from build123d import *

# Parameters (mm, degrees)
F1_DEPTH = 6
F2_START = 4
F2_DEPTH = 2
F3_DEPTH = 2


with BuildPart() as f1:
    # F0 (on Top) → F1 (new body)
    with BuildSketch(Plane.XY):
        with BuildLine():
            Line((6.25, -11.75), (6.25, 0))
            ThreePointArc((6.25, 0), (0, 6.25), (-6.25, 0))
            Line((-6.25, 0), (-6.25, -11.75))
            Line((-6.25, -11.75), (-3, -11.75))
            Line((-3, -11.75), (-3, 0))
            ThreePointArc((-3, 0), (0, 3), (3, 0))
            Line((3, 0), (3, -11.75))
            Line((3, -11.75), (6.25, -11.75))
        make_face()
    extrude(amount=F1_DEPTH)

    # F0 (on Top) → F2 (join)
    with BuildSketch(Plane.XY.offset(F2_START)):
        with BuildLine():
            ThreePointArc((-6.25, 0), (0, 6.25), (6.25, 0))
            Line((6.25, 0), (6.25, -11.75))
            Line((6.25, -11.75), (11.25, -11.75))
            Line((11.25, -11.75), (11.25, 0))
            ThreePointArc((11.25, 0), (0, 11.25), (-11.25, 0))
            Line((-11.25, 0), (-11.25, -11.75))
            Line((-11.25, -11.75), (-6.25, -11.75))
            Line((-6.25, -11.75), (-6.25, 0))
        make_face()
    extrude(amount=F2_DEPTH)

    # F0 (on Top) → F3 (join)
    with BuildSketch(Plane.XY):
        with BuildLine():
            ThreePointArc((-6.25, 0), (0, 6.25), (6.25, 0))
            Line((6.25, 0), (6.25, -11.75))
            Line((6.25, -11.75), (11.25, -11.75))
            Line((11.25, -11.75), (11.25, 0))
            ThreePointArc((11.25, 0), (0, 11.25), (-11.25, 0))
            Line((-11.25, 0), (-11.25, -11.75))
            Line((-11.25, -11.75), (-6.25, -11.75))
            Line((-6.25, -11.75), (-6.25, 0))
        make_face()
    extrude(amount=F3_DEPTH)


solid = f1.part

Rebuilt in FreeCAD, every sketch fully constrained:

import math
import FreeCAD as App
import Part
import Sketcher

V = App.Vector
Q = App.Units.Quantity

doc = App.newDocument("Part")
params = doc.addObject("Spreadsheet::Sheet", "Params")
for row, (alias, value) in enumerate([
    ("sketch1_radius", "3 mm"),
    ("sketch1_radius2", "6.25 mm"),
    ("sketch1_height", "11.75 mm"),
    ("pad1_length", "6 mm"),
    ("sketch2_width", "5 mm"),
    ("sketch2_radius", "6.25 mm"),
    ("sketch2_height", "11.75 mm"),
    ("pad2_length", "2 mm"),
    ("sketch3_width", "5 mm"),
    ("sketch3_radius", "6.25 mm"),
    ("sketch3_height", "11.75 mm"),
    ("pad3_length", "2 mm"),
], start=1):
    params.set(f"A{row}", alias)
    params.set(f"B{row}", "=" + value)
    params.setAlias(f"B{row}", alias)

body = doc.addObject("PartDesign::Body", "Body")

# Sketch on XY plane
sketch1 = body.newObject("Sketcher::SketchObject", "Sketch")
sketch1.AttachmentSupport = (doc.getObject("XY_Plane"), [""])
sketch1.MapMode = "FlatFace"
sketch1.addGeometry(Part.LineSegment(V(6.25, -11.75, 0), V(6.25, 0, 0)), False)
sketch1.addGeometry(Part.ArcOfCircle(Part.Circle(V(0, 0, 0), V(0, 0, 1), 6.25), math.radians(0), math.radians(180)), False)
sketch1.addGeometry(Part.LineSegment(V(-6.25, 0, 0), V(-6.25, -11.75, 0)), False)
sketch1.addGeometry(Part.LineSegment(V(-6.25, -11.75, 0), V(-3, -11.75, 0)), False)
sketch1.addGeometry(Part.LineSegment(V(-3, -11.75, 0), V(-3, 0, 0)), False)
sketch1.addGeometry(Part.ArcOfCircle(Part.Circle(V(0, 0, 0), V(0, 0, 1), 3), math.radians(0), math.radians(180)), False)
sketch1.addGeometry(Part.LineSegment(V(3, 0, 0), V(3, -11.75, 0)), False)
sketch1.addGeometry(Part.LineSegment(V(3, -11.75, 0), V(6.25, -11.75, 0)), False)
sketch1.addConstraint(Sketcher.Constraint("Tangent", 0, 2, 1, 1))
sketch1.addConstraint(Sketcher.Constraint("Tangent", 1, 2, 2, 1))
sketch1.addConstraint(Sketcher.Constraint("Coincident", 2, 2, 3, 1))
sketch1.addConstraint(Sketcher.Constraint("Coincident", 3, 2, 4, 1))
sketch1.addConstraint(Sketcher.Constraint("Tangent", 4, 2, 5, 2))
sketch1.addConstraint(Sketcher.Constraint("Tangent", 5, 1, 6, 1))
sketch1.addConstraint(Sketcher.Constraint("Coincident", 6, 2, 7, 1))
sketch1.addConstraint(Sketcher.Constraint("Coincident", 7, 2, 0, 1))
sketch1.addConstraint(Sketcher.Constraint("Vertical", 0))
sketch1.addConstraint(Sketcher.Constraint("Vertical", 2))
sketch1.addConstraint(Sketcher.Constraint("Horizontal", 3))
sketch1.addConstraint(Sketcher.Constraint("Vertical", 4))
sketch1.addConstraint(Sketcher.Constraint("Vertical", 6))
sketch1.addConstraint(Sketcher.Constraint("Horizontal", 7))
sketch1.addConstraint(Sketcher.Constraint("Coincident", 1, 3, -1, 1))
sketch1.addConstraint(Sketcher.Constraint("Coincident", 5, 3, -1, 1))
sketch1.addConstraint(Sketcher.Constraint("Horizontal", 3, 2, 6, 2))
sketch1.addConstraint(Sketcher.Constraint("Radius", 5, Q("3 mm")))
sketch1.addConstraint(Sketcher.Constraint("Radius", 1, Q("6.25 mm")))
sketch1.addConstraint(Sketcher.Constraint("DistanceY", 0, 1, 0, 2, Q("11.75 mm")))
sketch1.setExpression("Constraints[17]", "Params.sketch1_radius")
sketch1.setExpression("Constraints[18]", "Params.sketch1_radius2")
sketch1.setExpression("Constraints[19]", "Params.sketch1_height")
pad1 = body.newObject("PartDesign::Pad", "Pad")
pad1.Profile = sketch1
pad1.setExpression("Length", "Params.pad1_length")

# Sketch on XY plane
sketch2 = body.newObject("Sketcher::SketchObject", "Sketch001")
sketch2.AttachmentSupport = (doc.getObject("XY_Plane"), [""])
sketch2.MapMode = "FlatFace"
sketch2.AttachmentOffset = App.Placement(V(0, 0, 4), App.Rotation())
sketch2.addGeometry(Part.ArcOfCircle(Part.Circle(V(0, 0, 0), V(0, 0, 1), 6.25), math.radians(0), math.radians(180)), False)
sketch2.addGeometry(Part.LineSegment(V(6.25, 0, 0), V(6.25, -11.75, 0)), False)
sketch2.addGeometry(Part.LineSegment(V(6.25, -11.75, 0), V(11.25, -11.75, 0)), False)
sketch2.addGeometry(Part.LineSegment(V(11.25, -11.75, 0), V(11.25, 0, 0)), False)
sketch2.addGeometry(Part.ArcOfCircle(Part.Circle(V(0, 0, 0), V(0, 0, 1), 11.25), math.radians(0), math.radians(180)), False)
sketch2.addGeometry(Part.LineSegment(V(-11.25, 0, 0), V(-11.25, -11.75, 0)), False)
sketch2.addGeometry(Part.LineSegment(V(-11.25, -11.75, 0), V(-6.25, -11.75, 0)), False)
sketch2.addGeometry(Part.LineSegment(V(-6.25, -11.75, 0), V(-6.25, 0, 0)), False)
sketch2.addConstraint(Sketcher.Constraint("Tangent", 0, 1, 1, 1))
sketch2.addConstraint(Sketcher.Constraint("Coincident", 1, 2, 2, 1))
sketch2.addConstraint(Sketcher.Constraint("Coincident", 2, 2, 3, 1))
sketch2.addConstraint(Sketcher.Constraint("Tangent", 3, 2, 4, 1))
sketch2.addConstraint(Sketcher.Constraint("Tangent", 4, 2, 5, 1))
sketch2.addConstraint(Sketcher.Constraint("Coincident", 5, 2, 6, 1))
sketch2.addConstraint(Sketcher.Constraint("Coincident", 6, 2, 7, 1))
sketch2.addConstraint(Sketcher.Constraint("Tangent", 7, 2, 0, 2))
sketch2.addConstraint(Sketcher.Constraint("Vertical", 1))
sketch2.addConstraint(Sketcher.Constraint("Horizontal", 2))
sketch2.addConstraint(Sketcher.Constraint("Vertical", 3))
sketch2.addConstraint(Sketcher.Constraint("Vertical", 5))
sketch2.addConstraint(Sketcher.Constraint("Horizontal", 6))
sketch2.addConstraint(Sketcher.Constraint("Vertical", 7))
sketch2.addConstraint(Sketcher.Constraint("Coincident", 0, 3, -1, 1))
sketch2.addConstraint(Sketcher.Constraint("Coincident", 4, 3, -1, 1))
sketch2.addConstraint(Sketcher.Constraint("Horizontal", 2, 2, 5, 2))
sketch2.addConstraint(Sketcher.Constraint("DistanceX", 2, 1, 2, 2, Q("5 mm")))
sketch2.addConstraint(Sketcher.Constraint("Radius", 0, Q("6.25 mm")))
sketch2.addConstraint(Sketcher.Constraint("DistanceY", 1, 2, 1, 1, Q("11.75 mm")))
sketch2.setExpression("Constraints[17]", "Params.sketch2_width")
sketch2.setExpression("Constraints[18]", "Params.sketch2_radius")
sketch2.setExpression("Constraints[19]", "Params.sketch2_height")
pad2 = body.newObject("PartDesign::Pad", "Pad001")
pad2.Profile = sketch2
pad2.setExpression("Length", "Params.pad2_length")

# Sketch on XY plane
sketch3 = body.newObject("Sketcher::SketchObject", "Sketch002")
sketch3.AttachmentSupport = (doc.getObject("XY_Plane"), [""])
sketch3.MapMode = "FlatFace"
sketch3.addGeometry(Part.ArcOfCircle(Part.Circle(V(0, 0, 0), V(0, 0, 1), 6.25), math.radians(0), math.radians(180)), False)
sketch3.addGeometry(Part.LineSegment(V(6.25, 0, 0), V(6.25, -11.75, 0)), False)
sketch3.addGeometry(Part.LineSegment(V(6.25, -11.75, 0), V(11.25, -11.75, 0)), False)
sketch3.addGeometry(Part.LineSegment(V(11.25, -11.75, 0), V(11.25, 0, 0)), False)
sketch3.addGeometry(Part.ArcOfCircle(Part.Circle(V(0, 0, 0), V(0, 0, 1), 11.25), math.radians(0), math.radians(180)), False)
sketch3.addGeometry(Part.LineSegment(V(-11.25, 0, 0), V(-11.25, -11.75, 0)), False)
sketch3.addGeometry(Part.LineSegment(V(-11.25, -11.75, 0), V(-6.25, -11.75, 0)), False)
sketch3.addGeometry(Part.LineSegment(V(-6.25, -11.75, 0), V(-6.25, 0, 0)), False)
sketch3.addConstraint(Sketcher.Constraint("Tangent", 0, 1, 1, 1))
sketch3.addConstraint(Sketcher.Constraint("Coincident", 1, 2, 2, 1))
sketch3.addConstraint(Sketcher.Constraint("Coincident", 2, 2, 3, 1))
sketch3.addConstraint(Sketcher.Constraint("Tangent", 3, 2, 4, 1))
sketch3.addConstraint(Sketcher.Constraint("Tangent", 4, 2, 5, 1))
sketch3.addConstraint(Sketcher.Constraint("Coincident", 5, 2, 6, 1))
sketch3.addConstraint(Sketcher.Constraint("Coincident", 6, 2, 7, 1))
sketch3.addConstraint(Sketcher.Constraint("Tangent", 7, 2, 0, 2))
sketch3.addConstraint(Sketcher.Constraint("Vertical", 1))
sketch3.addConstraint(Sketcher.Constraint("Horizontal", 2))
sketch3.addConstraint(Sketcher.Constraint("Vertical", 3))
sketch3.addConstraint(Sketcher.Constraint("Vertical", 5))
sketch3.addConstraint(Sketcher.Constraint("Horizontal", 6))
sketch3.addConstraint(Sketcher.Constraint("Vertical", 7))
sketch3.addConstraint(Sketcher.Constraint("Coincident", 0, 3, -1, 1))
sketch3.addConstraint(Sketcher.Constraint("Coincident", 4, 3, -1, 1))
sketch3.addConstraint(Sketcher.Constraint("Horizontal", 2, 2, 5, 2))
sketch3.addConstraint(Sketcher.Constraint("DistanceX", 2, 1, 2, 2, Q("5 mm")))
sketch3.addConstraint(Sketcher.Constraint("Radius", 0, Q("6.25 mm")))
sketch3.addConstraint(Sketcher.Constraint("DistanceY", 1, 2, 1, 1, Q("11.75 mm")))
sketch3.setExpression("Constraints[17]", "Params.sketch3_width")
sketch3.setExpression("Constraints[18]", "Params.sketch3_radius")
sketch3.setExpression("Constraints[19]", "Params.sketch3_height")
pad3 = body.newObject("PartDesign::Pad", "Pad002")
pad3.Profile = sketch3
pad3.setExpression("Length", "Params.pad3_length")

doc.recompute()
